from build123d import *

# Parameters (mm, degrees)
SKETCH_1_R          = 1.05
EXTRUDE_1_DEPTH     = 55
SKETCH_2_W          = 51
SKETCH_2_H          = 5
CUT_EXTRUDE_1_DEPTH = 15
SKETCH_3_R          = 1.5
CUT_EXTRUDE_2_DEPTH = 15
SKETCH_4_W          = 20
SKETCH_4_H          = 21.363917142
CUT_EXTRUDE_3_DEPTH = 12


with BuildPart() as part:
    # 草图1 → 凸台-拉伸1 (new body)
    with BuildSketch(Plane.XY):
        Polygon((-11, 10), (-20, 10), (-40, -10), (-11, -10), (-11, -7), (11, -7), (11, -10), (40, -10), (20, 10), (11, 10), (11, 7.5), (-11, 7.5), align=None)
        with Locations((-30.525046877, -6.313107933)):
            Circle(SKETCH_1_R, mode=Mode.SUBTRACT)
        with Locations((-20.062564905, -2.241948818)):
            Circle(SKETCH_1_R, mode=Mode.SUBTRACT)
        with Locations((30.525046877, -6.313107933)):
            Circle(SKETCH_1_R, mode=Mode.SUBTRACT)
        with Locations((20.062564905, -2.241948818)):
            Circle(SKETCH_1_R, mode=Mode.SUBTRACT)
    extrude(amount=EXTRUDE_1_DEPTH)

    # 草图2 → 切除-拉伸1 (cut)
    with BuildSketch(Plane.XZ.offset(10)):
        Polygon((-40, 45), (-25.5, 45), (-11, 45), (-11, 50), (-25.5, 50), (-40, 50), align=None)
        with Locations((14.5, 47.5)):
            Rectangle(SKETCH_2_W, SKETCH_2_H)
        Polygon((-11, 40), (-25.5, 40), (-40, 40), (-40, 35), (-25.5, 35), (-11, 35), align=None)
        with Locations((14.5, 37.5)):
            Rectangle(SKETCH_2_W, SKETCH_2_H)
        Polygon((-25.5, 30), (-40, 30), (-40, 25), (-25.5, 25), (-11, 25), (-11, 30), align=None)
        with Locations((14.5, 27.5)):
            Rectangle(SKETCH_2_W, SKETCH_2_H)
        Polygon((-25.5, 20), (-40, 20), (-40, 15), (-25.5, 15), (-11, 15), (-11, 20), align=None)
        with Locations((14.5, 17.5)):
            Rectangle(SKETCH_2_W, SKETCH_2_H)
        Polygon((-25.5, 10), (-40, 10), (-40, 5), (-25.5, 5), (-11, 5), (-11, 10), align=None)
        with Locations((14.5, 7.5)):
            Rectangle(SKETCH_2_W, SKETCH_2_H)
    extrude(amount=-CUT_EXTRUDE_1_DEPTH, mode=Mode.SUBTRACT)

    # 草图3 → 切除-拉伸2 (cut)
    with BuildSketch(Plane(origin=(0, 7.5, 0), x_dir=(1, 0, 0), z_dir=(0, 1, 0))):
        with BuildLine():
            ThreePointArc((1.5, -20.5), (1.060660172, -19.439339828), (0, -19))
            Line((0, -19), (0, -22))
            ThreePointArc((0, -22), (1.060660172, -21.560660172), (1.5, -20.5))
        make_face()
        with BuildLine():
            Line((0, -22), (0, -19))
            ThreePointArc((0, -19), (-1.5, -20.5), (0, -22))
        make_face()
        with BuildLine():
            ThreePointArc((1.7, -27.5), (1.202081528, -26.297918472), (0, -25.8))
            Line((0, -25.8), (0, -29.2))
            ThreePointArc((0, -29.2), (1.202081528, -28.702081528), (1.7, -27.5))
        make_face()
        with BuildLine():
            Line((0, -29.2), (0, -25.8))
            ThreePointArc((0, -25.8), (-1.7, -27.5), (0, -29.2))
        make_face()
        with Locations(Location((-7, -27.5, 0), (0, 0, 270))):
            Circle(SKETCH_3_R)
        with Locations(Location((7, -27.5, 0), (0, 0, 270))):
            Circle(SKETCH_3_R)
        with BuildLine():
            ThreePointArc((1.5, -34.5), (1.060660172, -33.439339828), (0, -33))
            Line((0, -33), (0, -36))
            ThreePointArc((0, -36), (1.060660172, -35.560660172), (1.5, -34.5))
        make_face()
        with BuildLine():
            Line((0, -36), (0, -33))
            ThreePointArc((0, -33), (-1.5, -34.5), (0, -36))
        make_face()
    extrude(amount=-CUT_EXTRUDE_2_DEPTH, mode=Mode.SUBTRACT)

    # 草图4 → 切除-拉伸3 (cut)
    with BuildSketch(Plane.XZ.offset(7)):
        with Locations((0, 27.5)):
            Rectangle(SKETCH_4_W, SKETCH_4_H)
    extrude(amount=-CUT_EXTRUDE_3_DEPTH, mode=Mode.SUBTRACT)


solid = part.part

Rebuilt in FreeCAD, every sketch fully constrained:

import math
import FreeCAD as App
import Part
import Sketcher

V = App.Vector
Q = App.Units.Quantity


def add_polygon(sketch, points):
    """Adds a closed chain of lines whose ends are joined by coincident constraints."""
    first, n = sketch.GeometryCount, len(points)
    for a, b in zip(points, points[1:] + points[:1]):
        sketch.addGeometry(Part.LineSegment(App.Vector(*a, 0), App.Vector(*b, 0)), False)
    for i in range(n):
        sketch.addConstraint(Sketcher.Constraint("Coincident", first + i, 2, first + (i + 1) % n, 1))

doc = App.newDocument("Part")
body = doc.addObject("PartDesign::Body", "Body")

sketch1 = body.newObject("Sketcher::SketchObject", "Sketch")
sketch1.AttachmentSupport = (doc.getObject("XY_Plane"), [""])
sketch1.MapMode = "FlatFace"
add_polygon(sketch1, [(-11, 10), (-20, 10), (-40, -10), (-11, -10), (-11, -7), (11, -7), (11, -10), (40, -10), (20, 10), (11, 10), (11, 7.5), (-11, 7.5)])
sketch1.addGeometry(Part.Circle(V(-30.5, -6.3, 0), V(0, 0, 1), 1.1), False)
sketch1.addGeometry(Part.Circle(V(30.5, -6.3, 0), V(0, 0, 1), 1.1), False)
sketch1.addGeometry(Part.Circle(V(-20.1, -2.2, 0), V(0, 0, 1), 1.1), False)
sketch1.addGeometry(Part.Circle(V(20.1, -2.2, 0), V(0, 0, 1), 1.1), False)
sketch1.addConstraint([
    Sketcher.Constraint("Horizontal", 0),
    Sketcher.Constraint("Horizontal", 2),
    Sketcher.Constraint("Vertical", 3),
    Sketcher.Constraint("Horizontal", 4),
    Sketcher.Constraint("Vertical", 5),
    Sketcher.Constraint("Horizontal", 6),
    Sketcher.Constraint("Horizontal", 8),
    Sketcher.Constraint("Vertical", 9),
    Sketcher.Constraint("Horizontal", 10),
    Sketcher.Constraint("Vertical", 11),
    Sketcher.Constraint("Equal", 12, 13),
    Sketcher.Constraint("Equal", 13, 14),
    Sketcher.Constraint("Equal", 14, 15),
    Sketcher.Constraint("Symmetric", 2, 2, 8, 2, -1, 1),
    Sketcher.Constraint("Symmetric", 5, 2, 11, 2, -1, 1),
    Sketcher.Constraint("Symmetric", 12, 3, 13, 3, -2),
    Sketcher.Constraint("Symmetric", 14, 3, 15, 3, -2),
    Sketcher.Constraint("Symmetric", 2, 2, 5, 2, -2),
    Sketcher.Constraint("Perpendicular", 1, 7),
    Sketcher.Constraint("Equal", 2, 6),
    Sketcher.Constraint("Equal", 0, 8),
    Sketcher.Constraint("Diameter", 12, Q("2.1 mm")),
    Sketcher.Constraint("DistanceX", 0, 2, 0, 1, Q("9 mm")),
    Sketcher.Constraint("DistanceX", 2, 1, 2, 2, Q("29 mm")),
    Sketcher.Constraint("DistanceX", 4, 1, 4, 2, Q("22 mm")),
    Sketcher.Constraint("DistanceY", 3, 1, 3, 2, Q("3 mm")),
    Sketcher.Constraint("DistanceY", 9, 2, 9, 1, Q("2.5 mm")),
    Sketcher.Constraint("DistanceY", 14, 3, -1, 1, Q("2.241949 mm")),
    Sketcher.Constraint("DistanceX", 12, 3, 14, 3, Q("10.462482 mm")),
    Sketcher.Constraint("DistanceY", 12, 3, 14, 3, Q("4.071159 mm")),
    Sketcher.Constraint("DistanceX", 14, 3, 13, 3, Q("50.587612 mm")),
])
pad1 = body.newObject("PartDesign::Pad", "Pad")
pad1.Profile = sketch1
pad1.Length = 55

sketch2 = body.newObject("Sketcher::SketchObject", "Sketch001")
sketch2.AttachmentSupport = (doc.getObject("XZ_Plane"), [""])
sketch2.MapMode = "FlatFace"
sketch2.AttachmentOffset = App.Placement(V(0, 0, 10), App.Rotation())
add_polygon(sketch2, [(-40, 45), (40, 45), (40, 50), (-40, 50)])
add_polygon(sketch2, [(-40, 40), (-40, 35), (40, 35), (40, 40)])
add_polygon(sketch2, [(-40, 30), (-40, 25), (40, 25), (40, 30)])
add_polygon(sketch2, [(-40, 20), (-40, 15), (40, 15), (40, 20)])
add_polygon(sketch2, [(-40, 10), (-40, 5), (40, 5), (40, 10)])
sketch2.addConstraint([
    Sketcher.Constraint("Horizontal", 0),
    Sketcher.Constraint("Vertical", 1),
    Sketcher.Constraint("Horizontal", 2),
    Sketcher.Constraint("Vertical", 3),
    Sketcher.Constraint("Vertical", 4),
    Sketcher.Constraint("Horizontal", 5),
    Sketcher.Constraint("Vertical", 6),
    Sketcher.Constraint("Horizontal", 7),
    Sketcher.Constraint("Vertical", 8),
    Sketcher.Constraint("Horizontal", 9),
    Sketcher.Constraint("Vertical", 10),
    Sketcher.Constraint("Horizontal", 11),
    Sketcher.Constraint("Vertical", 12),
    Sketcher.Constraint("Horizontal", 13),
    Sketcher.Constraint("Vertical", 14),
    Sketcher.Constraint("Horizontal", 15),
    Sketcher.Constraint("Vertical", 16),
    Sketcher.Constraint("Horizontal", 17),
    Sketcher.Constraint("Vertical", 18),
    Sketcher.Constraint("Horizontal", 19),
    Sketcher.Constraint("Vertical", 3, 2, 4, 2),
    Sketcher.Constraint("Vertical", 1, 2, 5, 2),
    Sketcher.Constraint("Vertical", 7, 2, 8, 2),
    Sketcher.Constraint("Vertical", 6, 2, 9, 2),
    Sketcher.Constraint("Vertical", 11, 2, 12, 2),
    Sketcher.Constraint("Vertical", 10, 2, 13, 2),
    Sketcher.Constraint("Vertical", 15, 2, 16, 2),
    Sketcher.Constraint("Vertical", 14, 2, 17, 2),
    Sketcher.Constraint("Equal", 3, 4),
    Sketcher.Constraint("Equal", 6, 8),
    Sketcher.Constraint("Equal", 10, 12),
    Sketcher.Constraint("Equal", 14, 16),
    Sketcher.Constraint("DistanceX", 0, 1, 0, 2, Q("80 mm")),
    Sketcher.Constraint("DistanceY", 1, 1, 1, 2, Q("5 mm")),
    Sketcher.Constraint("DistanceX", -1, 1, 0, 2, Q("40 mm")),
    Sketcher.Constraint("DistanceY", -1, 1, 0, 2, Q("45 mm")),
    Sketcher.Constraint("DistanceY", -1, 1, 4, 2, Q("35 mm")),
    Sketcher.Constraint("DistanceY", -1, 1, 8, 2, Q("25 mm")),
    Sketcher.Constraint("DistanceY", -1, 1, 12, 2, Q("15 mm")),
    Sketcher.Constraint("DistanceY", -1, 1, 16, 2, Q("5 mm")),
])
pocket1 = body.newObject("PartDesign::Pocket", "Pocket")
pocket1.Profile = sketch2
pocket1.Length = 15

sketch3 = body.newObject("Sketcher::SketchObject", "Sketch002")
sketch3.AttachmentSupport = (doc.getObject("XZ_Plane"), [""])
sketch3.MapMode = "FlatFace"
sketch3.AttachmentOffset = App.Placement(V(0, 0, -7.5), App.Rotation())
sketch3.addGeometry([
    Part.ArcOfCircle(Part.Circle(V(0, 20.5, 0), V(0, 0, 1), 1.5), math.radians(-90), math.radians(0)),
    Part.ArcOfCircle(Part.Circle(V(0, 20.5, 0), V(0, 0, 1), 1.5), math.radians(90), math.radians(270)),
    Part.ArcOfCircle(Part.Circle(V(0, 20.5, 0), V(0, 0, 1), 1.5), math.radians(0), math.radians(90)),
    Part.ArcOfCircle(Part.Circle(V(0, 27.5, 0), V(0, 0, 1), 1.7), math.radians(-90), math.radians(0)),
    Part.ArcOfCircle(Part.Circle(V(0, 27.5, 0), V(0, 0, 1), 1.7), math.radians(90), math.radians(270)),
    Part.ArcOfCircle(Part.Circle(V(0, 27.5, 0), V(0, 0, 1), 1.7), math.radians(0), math.radians(90)),
    Part.Circle(V(-7, 27.5, 0), V(0, 0, 1), 1.5),
    Part.Circle(V(7, 27.5, 0), V(0, 0, 1), 1.5),
    Part.ArcOfCircle(Part.Circle(V(0, 34.5, 0), V(0, 0, 1), 1.5), math.radians(-90), math.radians(0)),
    Part.ArcOfCircle(Part.Circle(V(0, 34.5, 0), V(0, 0, 1), 1.5), math.radians(90), math.radians(270)),
    Part.ArcOfCircle(Part.Circle(V(0, 34.5, 0), V(0, 0, 1), 1.5), math.radians(0), math.radians(90)),
], False)
sketch3.addConstraint([
    Sketcher.Constraint("Tangent", 0, 1, 1, 2),
    Sketcher.Constraint("Tangent", 1, 1, 2, 2),
    Sketcher.Constraint("Tangent", 2, 1, 0, 2),
    Sketcher.Constraint("Tangent", 3, 1, 4, 2),
    Sketcher.Constraint("Tangent", 4, 1, 5, 2),
    Sketcher.Constraint("Tangent", 5, 1, 3, 2),
    Sketcher.Constraint("Tangent", 8, 1, 9, 2),
    Sketcher.Constraint("Tangent", 9, 1, 10, 2),
    Sketcher.Constraint("Tangent", 10, 1, 8, 2),
    Sketcher.Constraint("Equal", 2, 6),
    Sketcher.Constraint("Equal", 6, 7),
    Sketcher.Constraint("Equal", 7, 8),
    Sketcher.Constraint("Symmetric", 6, 3, 7, 3, -2),
    Sketcher.Constraint("PointOnObject", 0, 3, -2),
    Sketcher.Constraint("PointOnObject", 3, 3, -2),
    Sketcher.Constraint("PointOnObject", 8, 3, -2),
    Sketcher.Constraint("PointOnObject", 0, 1, -2),
    Sketcher.Constraint("PointOnObject", 1, 1, -2),
    Sketcher.Constraint("PointOnObject", 3, 1, -2),
    Sketcher.Constraint("PointOnObject", 4, 1, -2),
    Sketcher.Constraint("PointOnObject", 8, 1, -2),
    Sketcher.Constraint("PointOnObject", 9, 1, -2),
    Sketcher.Constraint("Horizontal", 5, 3, 6, 3),
    Sketcher.Constraint("Horizontal", 1, 3, 2, 1),
    Sketcher.Constraint("Horizontal", 7, 3, 5, 1),
    Sketcher.Constraint("Horizontal", 9, 3, 10, 1),
    Sketcher.Constraint("Diameter", 6, Q("3 mm")),
    Sketcher.Constraint("Radius", 3, Q("1.7 mm")),
    Sketcher.Constraint("DistanceX", 6, 3, -1, 1, Q("7 mm")),
    Sketcher.Constraint("DistanceY", -1, 1, 0, 1, Q("19 mm")),
    Sketcher.Constraint("DistanceY", -1, 1, 8, 1, Q("33 mm")),
    Sketcher.Constraint("DistanceY", 2, 3, 3, 3, Q("7 mm")),
])
pocket2 = body.newObject("PartDesign::Pocket", "Pocket001")
pocket2.Profile = sketch3
pocket2.Length = 15
pocket2.Reversed = True

sketch4 = body.newObject("Sketcher::SketchObject", "Sketch003")
sketch4.AttachmentSupport = (doc.getObject("XZ_Plane"), [""])
sketch4.MapMode = "FlatFace"
sketch4.AttachmentOffset = App.Placement(V(0, 0, 7), App.Rotation())
add_polygon(sketch4, [(-10, 38), (-10, 17), (10, 17), (10, 38)])
sketch4.addConstraint([
    Sketcher.Constraint("Vertical", 0),
    Sketcher.Constraint("Horizontal", 1),
    Sketcher.Constraint("Vertical", 2),
    Sketcher.Constraint("Horizontal", 3),
    Sketcher.Constraint("DistanceX", 1, 1, 1, 2, Q("20 mm")),
    Sketcher.Constraint("DistanceX", 0, 2, -1, 1, Q("10 mm")),
    Sketcher.Constraint("DistanceY", 0, 2, 0, 1, Q("21.363917 mm")),
    Sketcher.Constraint("DistanceY", -1, 1, 0, 2, Q("16.818041 mm")),
])
pocket3 = body.newObject("PartDesign::Pocket", "Pocket002")
pocket3.Profile = sketch4
pocket3.Length = 12

doc.recompute()
